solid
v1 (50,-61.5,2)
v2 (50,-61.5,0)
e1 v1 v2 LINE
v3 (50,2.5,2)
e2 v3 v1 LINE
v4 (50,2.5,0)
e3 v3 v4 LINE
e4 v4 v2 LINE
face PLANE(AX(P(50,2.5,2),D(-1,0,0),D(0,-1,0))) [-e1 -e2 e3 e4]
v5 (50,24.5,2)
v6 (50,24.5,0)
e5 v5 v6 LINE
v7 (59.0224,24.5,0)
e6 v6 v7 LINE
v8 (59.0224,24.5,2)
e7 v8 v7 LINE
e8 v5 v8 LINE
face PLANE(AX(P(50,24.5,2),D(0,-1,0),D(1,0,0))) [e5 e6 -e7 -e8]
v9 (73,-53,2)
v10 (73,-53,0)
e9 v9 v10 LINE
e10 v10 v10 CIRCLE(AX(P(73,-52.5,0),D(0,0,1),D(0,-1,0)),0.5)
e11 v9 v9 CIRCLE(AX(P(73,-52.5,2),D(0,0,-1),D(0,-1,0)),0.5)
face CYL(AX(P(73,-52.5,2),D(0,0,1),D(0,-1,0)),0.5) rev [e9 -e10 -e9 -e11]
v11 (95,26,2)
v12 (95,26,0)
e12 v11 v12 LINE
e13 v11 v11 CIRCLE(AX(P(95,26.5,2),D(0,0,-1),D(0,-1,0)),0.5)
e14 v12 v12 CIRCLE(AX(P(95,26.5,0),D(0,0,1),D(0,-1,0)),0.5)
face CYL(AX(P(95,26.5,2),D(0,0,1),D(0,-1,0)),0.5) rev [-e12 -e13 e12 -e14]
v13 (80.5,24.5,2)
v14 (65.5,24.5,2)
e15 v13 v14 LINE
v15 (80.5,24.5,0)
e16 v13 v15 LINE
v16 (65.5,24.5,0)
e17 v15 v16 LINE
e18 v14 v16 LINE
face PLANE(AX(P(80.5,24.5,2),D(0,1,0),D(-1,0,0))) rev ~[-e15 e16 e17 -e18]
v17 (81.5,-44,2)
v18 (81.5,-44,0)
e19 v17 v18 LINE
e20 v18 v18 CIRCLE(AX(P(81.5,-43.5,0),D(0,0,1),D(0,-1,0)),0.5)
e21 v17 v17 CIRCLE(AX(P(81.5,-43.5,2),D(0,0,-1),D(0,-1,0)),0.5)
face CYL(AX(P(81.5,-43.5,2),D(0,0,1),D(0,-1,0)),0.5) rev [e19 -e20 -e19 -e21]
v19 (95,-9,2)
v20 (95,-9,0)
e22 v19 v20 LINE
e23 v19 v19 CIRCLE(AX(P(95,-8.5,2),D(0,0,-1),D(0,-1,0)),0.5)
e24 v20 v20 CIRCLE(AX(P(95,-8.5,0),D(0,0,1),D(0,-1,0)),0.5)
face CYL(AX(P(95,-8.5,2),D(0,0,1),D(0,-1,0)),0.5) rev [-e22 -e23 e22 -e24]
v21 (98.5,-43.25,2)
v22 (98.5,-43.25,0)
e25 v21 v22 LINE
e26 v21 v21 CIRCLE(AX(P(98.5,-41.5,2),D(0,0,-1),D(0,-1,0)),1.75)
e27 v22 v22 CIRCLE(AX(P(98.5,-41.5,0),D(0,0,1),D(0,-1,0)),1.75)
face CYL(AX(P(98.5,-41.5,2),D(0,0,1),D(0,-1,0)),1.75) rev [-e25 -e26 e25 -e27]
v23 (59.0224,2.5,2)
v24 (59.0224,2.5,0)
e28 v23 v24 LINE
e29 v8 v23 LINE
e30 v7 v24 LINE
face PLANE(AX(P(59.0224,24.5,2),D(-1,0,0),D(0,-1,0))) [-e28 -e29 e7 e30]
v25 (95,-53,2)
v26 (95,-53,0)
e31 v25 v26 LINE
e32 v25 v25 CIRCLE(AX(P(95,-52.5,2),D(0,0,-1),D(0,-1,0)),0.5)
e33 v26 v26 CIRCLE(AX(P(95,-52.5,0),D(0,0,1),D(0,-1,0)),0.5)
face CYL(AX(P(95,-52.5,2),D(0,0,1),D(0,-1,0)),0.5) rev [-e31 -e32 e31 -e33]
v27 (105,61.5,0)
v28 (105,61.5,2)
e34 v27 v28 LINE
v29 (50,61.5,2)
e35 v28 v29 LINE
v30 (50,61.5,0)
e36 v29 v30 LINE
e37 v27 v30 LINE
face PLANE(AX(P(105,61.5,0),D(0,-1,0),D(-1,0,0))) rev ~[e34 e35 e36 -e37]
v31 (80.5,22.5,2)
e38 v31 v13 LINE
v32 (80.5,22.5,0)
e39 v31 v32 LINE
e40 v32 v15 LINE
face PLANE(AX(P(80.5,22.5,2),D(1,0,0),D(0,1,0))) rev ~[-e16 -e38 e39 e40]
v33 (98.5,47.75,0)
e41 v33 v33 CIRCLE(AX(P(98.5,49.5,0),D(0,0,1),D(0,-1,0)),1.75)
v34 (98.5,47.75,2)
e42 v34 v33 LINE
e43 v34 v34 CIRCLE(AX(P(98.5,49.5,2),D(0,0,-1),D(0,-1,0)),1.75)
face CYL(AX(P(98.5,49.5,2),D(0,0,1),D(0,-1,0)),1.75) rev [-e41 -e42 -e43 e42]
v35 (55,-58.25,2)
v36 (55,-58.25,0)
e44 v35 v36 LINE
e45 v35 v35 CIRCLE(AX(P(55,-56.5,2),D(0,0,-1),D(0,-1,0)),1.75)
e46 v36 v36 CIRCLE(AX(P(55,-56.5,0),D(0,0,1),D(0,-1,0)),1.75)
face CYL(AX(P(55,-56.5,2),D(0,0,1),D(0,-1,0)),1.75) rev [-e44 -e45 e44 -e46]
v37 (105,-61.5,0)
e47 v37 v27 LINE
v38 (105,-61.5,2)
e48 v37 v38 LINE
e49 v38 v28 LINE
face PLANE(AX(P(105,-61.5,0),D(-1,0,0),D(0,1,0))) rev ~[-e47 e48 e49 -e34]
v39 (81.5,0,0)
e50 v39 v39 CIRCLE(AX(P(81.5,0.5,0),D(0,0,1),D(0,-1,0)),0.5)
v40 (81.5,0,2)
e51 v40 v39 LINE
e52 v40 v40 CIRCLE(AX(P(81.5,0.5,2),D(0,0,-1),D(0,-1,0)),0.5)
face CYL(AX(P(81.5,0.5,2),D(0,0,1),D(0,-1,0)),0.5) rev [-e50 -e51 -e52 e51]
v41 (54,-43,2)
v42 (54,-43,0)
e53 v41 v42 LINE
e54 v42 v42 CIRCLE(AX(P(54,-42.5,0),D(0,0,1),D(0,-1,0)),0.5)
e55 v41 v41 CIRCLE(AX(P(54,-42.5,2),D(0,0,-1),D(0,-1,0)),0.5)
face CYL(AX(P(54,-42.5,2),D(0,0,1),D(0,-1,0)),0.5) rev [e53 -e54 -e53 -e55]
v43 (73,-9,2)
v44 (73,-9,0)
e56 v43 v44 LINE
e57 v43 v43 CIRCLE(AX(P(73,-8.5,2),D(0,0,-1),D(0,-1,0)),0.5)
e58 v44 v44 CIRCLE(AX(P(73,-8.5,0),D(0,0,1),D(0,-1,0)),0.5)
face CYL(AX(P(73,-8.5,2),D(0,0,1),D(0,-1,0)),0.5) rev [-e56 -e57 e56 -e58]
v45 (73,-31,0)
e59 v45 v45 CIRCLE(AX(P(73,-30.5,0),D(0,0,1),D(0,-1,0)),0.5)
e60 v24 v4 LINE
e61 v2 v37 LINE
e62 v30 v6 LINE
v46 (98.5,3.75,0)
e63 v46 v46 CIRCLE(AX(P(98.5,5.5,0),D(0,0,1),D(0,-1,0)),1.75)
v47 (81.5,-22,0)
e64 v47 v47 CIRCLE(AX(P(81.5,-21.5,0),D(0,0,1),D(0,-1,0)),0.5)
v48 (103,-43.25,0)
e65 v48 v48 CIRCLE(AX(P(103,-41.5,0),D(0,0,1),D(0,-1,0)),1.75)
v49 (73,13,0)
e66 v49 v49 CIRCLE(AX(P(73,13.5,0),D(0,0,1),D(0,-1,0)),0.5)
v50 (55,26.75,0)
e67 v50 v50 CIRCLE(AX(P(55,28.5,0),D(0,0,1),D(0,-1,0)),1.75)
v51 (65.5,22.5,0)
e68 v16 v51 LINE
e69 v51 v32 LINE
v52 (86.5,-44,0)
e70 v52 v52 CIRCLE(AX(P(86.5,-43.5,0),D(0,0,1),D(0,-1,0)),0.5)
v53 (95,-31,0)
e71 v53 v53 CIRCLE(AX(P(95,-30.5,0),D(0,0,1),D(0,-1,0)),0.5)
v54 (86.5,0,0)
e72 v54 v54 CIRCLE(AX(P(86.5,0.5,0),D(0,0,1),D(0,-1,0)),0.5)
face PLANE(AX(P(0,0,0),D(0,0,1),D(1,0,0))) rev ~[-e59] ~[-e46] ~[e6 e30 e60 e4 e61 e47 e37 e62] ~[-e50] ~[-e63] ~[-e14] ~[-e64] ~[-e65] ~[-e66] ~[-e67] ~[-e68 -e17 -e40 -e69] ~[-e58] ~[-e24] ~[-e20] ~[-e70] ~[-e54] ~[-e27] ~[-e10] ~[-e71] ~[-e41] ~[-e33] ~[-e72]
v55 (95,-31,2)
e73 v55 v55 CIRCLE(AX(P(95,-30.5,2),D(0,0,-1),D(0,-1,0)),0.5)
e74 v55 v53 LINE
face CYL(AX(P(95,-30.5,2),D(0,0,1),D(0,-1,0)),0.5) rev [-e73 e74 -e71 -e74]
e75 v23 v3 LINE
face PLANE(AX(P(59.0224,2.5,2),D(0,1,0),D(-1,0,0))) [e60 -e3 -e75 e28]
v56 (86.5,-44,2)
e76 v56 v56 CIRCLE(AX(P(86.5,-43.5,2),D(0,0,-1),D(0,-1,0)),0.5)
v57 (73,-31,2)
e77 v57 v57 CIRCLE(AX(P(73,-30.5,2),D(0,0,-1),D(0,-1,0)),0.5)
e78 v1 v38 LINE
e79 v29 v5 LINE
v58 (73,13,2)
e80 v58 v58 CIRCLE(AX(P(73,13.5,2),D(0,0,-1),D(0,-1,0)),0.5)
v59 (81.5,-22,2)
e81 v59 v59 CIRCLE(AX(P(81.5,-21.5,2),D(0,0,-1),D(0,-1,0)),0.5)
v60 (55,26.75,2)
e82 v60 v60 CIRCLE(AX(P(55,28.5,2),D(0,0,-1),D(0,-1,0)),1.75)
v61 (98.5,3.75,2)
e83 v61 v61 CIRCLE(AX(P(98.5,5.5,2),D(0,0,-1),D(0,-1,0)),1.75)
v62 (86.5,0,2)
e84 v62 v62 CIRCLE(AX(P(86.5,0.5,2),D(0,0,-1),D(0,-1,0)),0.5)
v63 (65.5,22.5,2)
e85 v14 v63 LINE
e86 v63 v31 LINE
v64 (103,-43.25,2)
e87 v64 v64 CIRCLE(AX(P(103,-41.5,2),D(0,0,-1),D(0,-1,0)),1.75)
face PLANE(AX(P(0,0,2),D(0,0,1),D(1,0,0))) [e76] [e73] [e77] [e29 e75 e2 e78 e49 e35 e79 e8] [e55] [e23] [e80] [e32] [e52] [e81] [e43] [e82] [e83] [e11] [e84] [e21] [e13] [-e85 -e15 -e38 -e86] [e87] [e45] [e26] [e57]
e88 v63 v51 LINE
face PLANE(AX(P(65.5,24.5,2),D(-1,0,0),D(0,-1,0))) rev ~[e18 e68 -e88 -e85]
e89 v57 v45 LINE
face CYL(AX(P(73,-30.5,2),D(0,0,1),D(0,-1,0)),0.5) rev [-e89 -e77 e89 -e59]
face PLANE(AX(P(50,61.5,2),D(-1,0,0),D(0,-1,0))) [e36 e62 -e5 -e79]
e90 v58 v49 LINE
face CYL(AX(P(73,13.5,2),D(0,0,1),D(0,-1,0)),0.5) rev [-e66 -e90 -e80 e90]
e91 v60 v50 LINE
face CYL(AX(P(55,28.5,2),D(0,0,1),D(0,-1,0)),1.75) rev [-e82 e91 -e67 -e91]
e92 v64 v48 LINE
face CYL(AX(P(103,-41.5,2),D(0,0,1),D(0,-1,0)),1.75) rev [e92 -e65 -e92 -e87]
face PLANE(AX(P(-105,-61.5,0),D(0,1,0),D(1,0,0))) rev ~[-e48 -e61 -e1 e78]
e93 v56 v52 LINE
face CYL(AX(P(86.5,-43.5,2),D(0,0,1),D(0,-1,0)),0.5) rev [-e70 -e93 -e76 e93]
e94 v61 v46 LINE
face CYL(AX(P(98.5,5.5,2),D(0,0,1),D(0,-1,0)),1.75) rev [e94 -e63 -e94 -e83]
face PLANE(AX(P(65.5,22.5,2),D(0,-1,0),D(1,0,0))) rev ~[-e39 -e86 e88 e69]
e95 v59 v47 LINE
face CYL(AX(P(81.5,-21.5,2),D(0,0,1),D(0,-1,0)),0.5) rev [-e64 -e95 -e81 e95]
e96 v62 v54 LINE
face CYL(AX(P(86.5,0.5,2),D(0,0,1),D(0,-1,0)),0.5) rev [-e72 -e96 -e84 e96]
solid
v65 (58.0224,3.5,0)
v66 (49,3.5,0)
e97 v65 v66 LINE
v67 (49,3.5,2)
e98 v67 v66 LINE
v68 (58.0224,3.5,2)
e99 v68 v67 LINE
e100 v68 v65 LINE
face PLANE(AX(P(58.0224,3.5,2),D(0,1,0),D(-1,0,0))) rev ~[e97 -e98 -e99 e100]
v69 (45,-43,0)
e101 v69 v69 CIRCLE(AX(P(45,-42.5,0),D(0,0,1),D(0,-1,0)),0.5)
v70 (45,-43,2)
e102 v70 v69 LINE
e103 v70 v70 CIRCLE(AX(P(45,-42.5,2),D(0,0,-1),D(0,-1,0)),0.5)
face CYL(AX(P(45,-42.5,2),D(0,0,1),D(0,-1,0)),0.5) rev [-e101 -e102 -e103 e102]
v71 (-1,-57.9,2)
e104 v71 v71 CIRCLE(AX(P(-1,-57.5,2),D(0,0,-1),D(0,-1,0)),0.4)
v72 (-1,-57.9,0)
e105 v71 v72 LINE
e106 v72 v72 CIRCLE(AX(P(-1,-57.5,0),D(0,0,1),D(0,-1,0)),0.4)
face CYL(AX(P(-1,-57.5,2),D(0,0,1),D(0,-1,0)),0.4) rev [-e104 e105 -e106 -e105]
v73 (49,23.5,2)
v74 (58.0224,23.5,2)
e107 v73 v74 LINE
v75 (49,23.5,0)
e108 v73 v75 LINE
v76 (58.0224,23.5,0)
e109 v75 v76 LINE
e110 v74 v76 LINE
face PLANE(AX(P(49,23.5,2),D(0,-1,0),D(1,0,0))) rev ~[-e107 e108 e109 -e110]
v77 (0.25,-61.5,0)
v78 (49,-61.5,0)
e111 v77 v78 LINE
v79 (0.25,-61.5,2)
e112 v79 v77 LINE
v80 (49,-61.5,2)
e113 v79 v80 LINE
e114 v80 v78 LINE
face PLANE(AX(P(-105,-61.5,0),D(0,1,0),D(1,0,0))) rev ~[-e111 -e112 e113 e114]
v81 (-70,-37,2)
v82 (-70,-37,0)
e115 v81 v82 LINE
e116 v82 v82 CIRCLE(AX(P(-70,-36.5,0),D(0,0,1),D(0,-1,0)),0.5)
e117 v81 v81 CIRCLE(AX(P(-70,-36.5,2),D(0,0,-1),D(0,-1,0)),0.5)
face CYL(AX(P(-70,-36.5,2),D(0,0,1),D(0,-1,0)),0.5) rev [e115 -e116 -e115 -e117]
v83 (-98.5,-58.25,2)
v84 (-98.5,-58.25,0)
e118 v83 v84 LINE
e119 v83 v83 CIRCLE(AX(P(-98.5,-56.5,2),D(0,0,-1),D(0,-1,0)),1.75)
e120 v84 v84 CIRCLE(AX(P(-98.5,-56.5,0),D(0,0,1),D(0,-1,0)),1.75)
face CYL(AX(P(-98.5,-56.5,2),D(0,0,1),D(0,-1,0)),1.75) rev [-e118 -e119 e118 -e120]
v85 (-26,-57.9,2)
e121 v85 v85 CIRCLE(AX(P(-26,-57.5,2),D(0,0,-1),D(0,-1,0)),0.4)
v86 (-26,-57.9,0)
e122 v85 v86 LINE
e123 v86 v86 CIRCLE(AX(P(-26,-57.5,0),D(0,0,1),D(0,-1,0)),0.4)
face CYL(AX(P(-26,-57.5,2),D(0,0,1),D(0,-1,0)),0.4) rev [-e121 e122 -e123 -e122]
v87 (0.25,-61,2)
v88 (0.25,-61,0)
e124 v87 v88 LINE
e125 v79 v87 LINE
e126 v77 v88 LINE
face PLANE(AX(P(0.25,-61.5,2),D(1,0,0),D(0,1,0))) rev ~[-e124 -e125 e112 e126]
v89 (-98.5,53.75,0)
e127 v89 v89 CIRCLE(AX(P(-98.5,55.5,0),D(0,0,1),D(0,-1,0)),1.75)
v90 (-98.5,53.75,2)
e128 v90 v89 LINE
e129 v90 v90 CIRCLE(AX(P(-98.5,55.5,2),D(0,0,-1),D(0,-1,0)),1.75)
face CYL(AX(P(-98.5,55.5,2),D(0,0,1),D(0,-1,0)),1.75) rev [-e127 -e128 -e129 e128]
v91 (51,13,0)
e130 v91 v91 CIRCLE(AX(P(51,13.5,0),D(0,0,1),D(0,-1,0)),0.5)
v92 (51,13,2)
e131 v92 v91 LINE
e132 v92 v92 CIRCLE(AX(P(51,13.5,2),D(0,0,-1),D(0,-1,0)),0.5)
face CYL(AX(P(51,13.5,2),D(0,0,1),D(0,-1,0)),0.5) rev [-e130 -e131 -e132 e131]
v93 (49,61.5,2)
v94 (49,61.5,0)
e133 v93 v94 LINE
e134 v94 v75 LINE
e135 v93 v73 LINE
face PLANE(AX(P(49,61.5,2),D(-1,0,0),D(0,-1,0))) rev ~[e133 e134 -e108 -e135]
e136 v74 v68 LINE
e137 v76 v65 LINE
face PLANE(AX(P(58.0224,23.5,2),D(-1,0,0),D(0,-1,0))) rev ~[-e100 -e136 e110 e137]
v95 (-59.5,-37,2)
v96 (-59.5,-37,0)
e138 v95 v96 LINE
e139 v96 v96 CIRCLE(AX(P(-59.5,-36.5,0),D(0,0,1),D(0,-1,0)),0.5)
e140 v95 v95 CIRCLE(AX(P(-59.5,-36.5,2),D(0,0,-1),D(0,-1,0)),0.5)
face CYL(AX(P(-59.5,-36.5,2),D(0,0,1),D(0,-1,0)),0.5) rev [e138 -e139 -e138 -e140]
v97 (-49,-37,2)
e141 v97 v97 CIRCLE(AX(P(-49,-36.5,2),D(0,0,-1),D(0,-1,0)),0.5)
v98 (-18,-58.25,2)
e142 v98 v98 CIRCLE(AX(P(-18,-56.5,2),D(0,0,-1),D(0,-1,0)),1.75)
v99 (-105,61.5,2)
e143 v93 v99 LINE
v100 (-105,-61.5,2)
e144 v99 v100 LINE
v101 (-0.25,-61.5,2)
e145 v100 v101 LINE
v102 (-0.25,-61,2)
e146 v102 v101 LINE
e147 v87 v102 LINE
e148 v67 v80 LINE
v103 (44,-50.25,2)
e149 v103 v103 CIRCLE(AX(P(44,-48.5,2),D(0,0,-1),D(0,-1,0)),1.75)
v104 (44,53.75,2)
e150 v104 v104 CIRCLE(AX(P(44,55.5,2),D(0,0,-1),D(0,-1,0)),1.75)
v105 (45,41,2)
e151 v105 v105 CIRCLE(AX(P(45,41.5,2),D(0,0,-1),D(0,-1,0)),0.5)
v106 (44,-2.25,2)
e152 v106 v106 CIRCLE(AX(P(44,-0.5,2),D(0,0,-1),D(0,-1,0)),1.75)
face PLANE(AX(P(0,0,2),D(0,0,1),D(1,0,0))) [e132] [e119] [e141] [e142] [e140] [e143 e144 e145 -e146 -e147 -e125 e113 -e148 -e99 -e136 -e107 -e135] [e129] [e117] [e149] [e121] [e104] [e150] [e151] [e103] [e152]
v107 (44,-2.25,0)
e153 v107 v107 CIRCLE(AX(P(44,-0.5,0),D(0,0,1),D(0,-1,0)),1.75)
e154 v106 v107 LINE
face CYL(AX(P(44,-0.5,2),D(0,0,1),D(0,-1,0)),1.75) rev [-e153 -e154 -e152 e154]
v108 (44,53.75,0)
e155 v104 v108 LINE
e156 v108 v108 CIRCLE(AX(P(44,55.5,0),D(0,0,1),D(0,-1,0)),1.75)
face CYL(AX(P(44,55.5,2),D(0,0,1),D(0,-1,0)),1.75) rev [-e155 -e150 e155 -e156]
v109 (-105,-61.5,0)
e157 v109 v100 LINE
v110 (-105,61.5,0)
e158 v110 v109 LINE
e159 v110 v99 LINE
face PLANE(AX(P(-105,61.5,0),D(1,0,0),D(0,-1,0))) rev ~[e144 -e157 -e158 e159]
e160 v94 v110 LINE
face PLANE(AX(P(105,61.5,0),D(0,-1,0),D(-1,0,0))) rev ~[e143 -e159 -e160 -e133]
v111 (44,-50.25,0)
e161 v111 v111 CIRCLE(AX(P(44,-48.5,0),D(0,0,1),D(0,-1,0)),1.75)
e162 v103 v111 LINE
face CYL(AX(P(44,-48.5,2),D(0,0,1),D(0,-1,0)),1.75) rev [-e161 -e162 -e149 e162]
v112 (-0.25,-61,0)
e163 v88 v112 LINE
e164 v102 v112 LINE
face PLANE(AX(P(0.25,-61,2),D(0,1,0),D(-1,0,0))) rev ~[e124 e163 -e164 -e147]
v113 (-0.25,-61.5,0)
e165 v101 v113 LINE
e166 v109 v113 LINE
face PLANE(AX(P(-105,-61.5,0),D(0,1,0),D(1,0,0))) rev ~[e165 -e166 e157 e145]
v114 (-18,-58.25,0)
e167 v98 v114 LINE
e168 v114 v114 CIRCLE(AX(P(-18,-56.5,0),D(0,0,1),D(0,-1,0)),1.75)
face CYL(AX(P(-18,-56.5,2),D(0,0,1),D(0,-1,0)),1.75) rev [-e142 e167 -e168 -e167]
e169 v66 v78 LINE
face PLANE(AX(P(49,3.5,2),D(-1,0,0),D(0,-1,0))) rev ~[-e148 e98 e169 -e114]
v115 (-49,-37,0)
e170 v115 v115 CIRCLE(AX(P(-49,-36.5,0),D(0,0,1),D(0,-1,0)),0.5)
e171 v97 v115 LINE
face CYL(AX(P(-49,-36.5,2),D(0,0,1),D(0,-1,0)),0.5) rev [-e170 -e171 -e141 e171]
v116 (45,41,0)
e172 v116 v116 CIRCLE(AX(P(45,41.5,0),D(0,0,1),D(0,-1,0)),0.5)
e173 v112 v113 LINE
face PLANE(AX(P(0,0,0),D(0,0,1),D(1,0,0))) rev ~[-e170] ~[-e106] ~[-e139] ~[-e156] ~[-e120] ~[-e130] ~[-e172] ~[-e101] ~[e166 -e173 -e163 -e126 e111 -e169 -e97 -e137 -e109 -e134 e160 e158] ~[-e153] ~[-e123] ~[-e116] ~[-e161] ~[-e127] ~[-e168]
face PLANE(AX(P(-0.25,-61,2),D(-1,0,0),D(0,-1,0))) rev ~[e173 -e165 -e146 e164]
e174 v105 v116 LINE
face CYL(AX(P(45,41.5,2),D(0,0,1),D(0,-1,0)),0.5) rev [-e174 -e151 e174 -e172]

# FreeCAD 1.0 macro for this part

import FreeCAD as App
import Part
import Sketcher
Q = App.Units.Quantity

doc = App.newDocument("Part")
body = doc.addObject("PartDesign::Body", "Body")
body.AllowCompound = True

# Sketch on XY plane
sketch1 = body.newObject("Sketcher::SketchObject", "Sketch")
sketch1.AttachmentSupport = (doc.getObject("XY_Plane"), [""])
sketch1.MapMode = "FlatFace"
sketch1.addGeometry([
    Part.LineSegment(App.Vector(-105, 62, 0), App.Vector(-105, -62, 0)),
    Part.LineSegment(App.Vector(-105, -62, 0), App.Vector(105, -62, 0)),
    Part.LineSegment(App.Vector(105, -62, 0), App.Vector(105, 62, 0)),
    Part.LineSegment(App.Vector(105, 62, 0), App.Vector(-105, 62, 0)),
], False)
sketch1.addConstraint([
    Sketcher.Constraint("Coincident", 0, 2, 1, 1),
    Sketcher.Constraint("Coincident", 1, 2, 2, 1),
    Sketcher.Constraint("Coincident", 2, 2, 3, 1),
    Sketcher.Constraint("Coincident", 3, 2, 0, 1),
    Sketcher.Constraint("Vertical", 0),
    Sketcher.Constraint("Horizontal", 1),
    Sketcher.Constraint("Vertical", 2),
    Sketcher.Constraint("Horizontal", 3),
    Sketcher.Constraint("Symmetric", 0, 2, 2, 2, -1, 1),
    Sketcher.Constraint("DistanceX", 0, 2, -1, 1, Q("105 mm")),
    Sketcher.Constraint("DistanceY", 0, 2, 0, 1, Q("123 mm")),
])
pad1 = body.newObject("PartDesign::Pad", "Pad")
pad1.Profile = sketch1
pad1.Length = 2

# Sketch on XY plane
sketch2 = body.newObject("Sketcher::SketchObject", "Sketch001")
sketch2.AttachmentSupport = (doc.getObject("XY_Plane"), [""])
sketch2.MapMode = "FlatFace"
sketch2.AttachmentOffset = App.Placement(App.Vector(0, 0, 2), App.Rotation())
sketch2.addGeometry(Part.Circle(App.Vector(-1, -57.5, 0), App.Vector(0, 0, 1), 0.4), False)
sketch2.addConstraint([
    Sketcher.Constraint("Diameter", 0, Q("0.8 mm")),
    Sketcher.Constraint("DistanceX", 0, 3, -1, 1, Q("1 mm")),
    Sketcher.Constraint("DistanceY", 0, 3, -1, 1, Q("57.5 mm")),
])
doc.recompute()
hole = body.newObject("PartDesign::Hole", "Hole")
hole.Profile = sketch2
hole.ThreadType = "None"
hole.Diameter = 0.8
hole.DepthType = "ThroughAll"

# Sketch on XY plane
sketch3 = body.newObject("Sketcher::SketchObject", "Sketch002")
sketch3.AttachmentSupport = (doc.getObject("XY_Plane"), [""])
sketch3.MapMode = "FlatFace"
sketch3.AttachmentOffset = App.Placement(App.Vector(0, 0, 2), App.Rotation())
sketch3.addGeometry(Part.Circle(App.Vector(-26, -57.5, 0), App.Vector(0, 0, 1), 0.4), False)
sketch3.addConstraint([
    Sketcher.Constraint("Diameter", 0, Q("0.8 mm")),
    Sketcher.Constraint("DistanceX", 0, 3, -1, 1, Q("26 mm")),
    Sketcher.Constraint("DistanceY", 0, 3, -1, 1, Q("57.5 mm")),
])
doc.recompute()
hole2 = body.newObject("PartDesign::Hole", "Hole001")
hole2.Profile = sketch3
hole2.ThreadType = "None"
hole2.Diameter = 0.8
hole2.DepthType = "ThroughAll"

# Sketch on XY plane
sketch4 = body.newObject("Sketcher::SketchObject", "Sketch003")
sketch4.AttachmentSupport = (doc.getObject("XY_Plane"), [""])
sketch4.MapMode = "FlatFace"
sketch4.AttachmentOffset = App.Placement(App.Vector(0, 0, 2), App.Rotation())
sketch4.addGeometry([
    Part.LineSegment(App.Vector(0.2, -61.5, 0), App.Vector(0.2, -61, 0)),
    Part.LineSegment(App.Vector(0.2, -61, 0), App.Vector(-0.2, -61, 0)),
    Part.LineSegment(App.Vector(-0.2, -61, 0), App.Vector(-0.2, -61.5, 0)),
    Part.LineSegment(App.Vector(-0.2, -61.5, 0), App.Vector(0.2, -61.5, 0)),
], False)
sketch4.addConstraint([
    Sketcher.Constraint("Coincident", 0, 2, 1, 1),
    Sketcher.Constraint("Coincident", 1, 2, 2, 1),
    Sketcher.Constraint("Coincident", 2, 2, 3, 1),
    Sketcher.Constraint("Coincident", 3, 2, 0, 1),
    Sketcher.Constraint("Vertical", 0),
    Sketcher.Constraint("Horizontal", 1),
    Sketcher.Constraint("Vertical", 2),
    Sketcher.Constraint("Horizontal", 3),
    Sketcher.Constraint("Equal", 3, 0),
    Sketcher.Constraint("DistanceX", -1, 1, 0, 2, Q("0.25 mm")),
    Sketcher.Constraint("DistanceX", 1, 2, -1, 1, Q("0.25 mm")),
    Sketcher.Constraint("DistanceY", 0, 2, -1, 1, Q("61 mm")),
])
pocket1 = body.newObject("PartDesign::Pocket", "Pocket")
pocket1.Profile = sketch4
pocket1.Type = "ThroughAll"

# Sketch on XY plane
sketch5 = body.newObject("Sketcher::SketchObject", "Sketch004")
sketch5.AttachmentSupport = (doc.getObject("XY_Plane"), [""])
sketch5.MapMode = "FlatFace"
sketch5.AttachmentOffset = App.Placement(App.Vector(0, 0, 2), App.Rotation())
sketch5.addGeometry(Part.Circle(App.Vector(73, -52.5, 0), App.Vector(0, 0, 1), 0.5), False)
sketch5.addConstraint([
    Sketcher.Constraint("Diameter", 0, Q("1 mm")),
    Sketcher.Constraint("DistanceX", -1, 1, 0, 3, Q("73 mm")),
    Sketcher.Constraint("DistanceY", 0, 3, -1, 1, Q("52.5 mm")),
])
doc.recompute()
hole3 = body.newObject("PartDesign::Hole", "Hole002")
hole3.Profile = sketch5
hole3.ThreadType = "None"
hole3.Diameter = 1
hole3.DepthType = "ThroughAll"

# Sketch on XY plane
sketch6 = body.newObject("Sketcher::SketchObject", "Sketch005")
sketch6.AttachmentSupport = (doc.getObject("XY_Plane"), [""])
sketch6.MapMode = "FlatFace"
sketch6.AttachmentOffset = App.Placement(App.Vector(0, 0, 2), App.Rotation())
sketch6.addGeometry(Part.Circle(App.Vector(73, -30.5, 0), App.Vector(0, 0, 1), 0.5), False)
sketch6.addConstraint([
    Sketcher.Constraint("Diameter", 0, Q("1 mm")),
    Sketcher.Constraint("DistanceX", -1, 1, 0, 3, Q("73 mm")),
    Sketcher.Constraint("DistanceY", 0, 3, -1, 1, Q("30.5 mm")),
])
doc.recompute()
hole4 = body.newObject("PartDesign::Hole", "Hole003")
hole4.Profile = sketch6
hole4.ThreadType = "None"
hole4.Diameter = 1
hole4.DepthType = "ThroughAll"

# Sketch on XY plane
sketch7 = body.newObject("Sketcher::SketchObject", "Sketch006")
sketch7.AttachmentSupport = (doc.getObject("XY_Plane"), [""])
sketch7.MapMode = "FlatFace"
sketch7.AttachmentOffset = App.Placement(App.Vector(0, 0, 2), App.Rotation())
sketch7.addGeometry(Part.Circle(App.Vector(73, -8.5, 0), App.Vector(0, 0, 1), 0.5), False)
sketch7.addConstraint([
    Sketcher.Constraint("Diameter", 0, Q("1 mm")),
    Sketcher.Constraint("DistanceX", -1, 1, 0, 3, Q("73 mm")),
    Sketcher.Constraint("DistanceY", 0, 3, -1, 1, Q("8.5 mm")),
])
doc.recompute()
hole5 = body.newObject("PartDesign::Hole", "Hole004")
hole5.Profile = sketch7
hole5.ThreadType = "None"
hole5.Diameter = 1
hole5.DepthType = "ThroughAll"

# Sketch on XY plane
sketch8 = body.newObject("Sketcher::SketchObject", "Sketch007")
sketch8.AttachmentSupport = (doc.getObject("XY_Plane"), [""])
sketch8.MapMode = "FlatFace"
sketch8.AttachmentOffset = App.Placement(App.Vector(0, 0, 2), App.Rotation())
sketch8.addGeometry(Part.Circle(App.Vector(95, -8.5, 0), App.Vector(0, 0, 1), 0.5), False)
sketch8.addConstraint([
    Sketcher.Constraint("Diameter", 0, Q("1 mm")),
    Sketcher.Constraint("DistanceX", -1, 1, 0, 3, Q("95 mm")),
    Sketcher.Constraint("DistanceY", 0, 3, -1, 1, Q("8.5 mm")),
])
doc.recompute()
hole6 = body.newObject("PartDesign::Hole", "Hole005")
hole6.Profile = sketch8
hole6.ThreadType = "None"
hole6.Diameter = 1
hole6.DepthType = "ThroughAll"

# Sketch on XY plane
sketch9 = body.newObject("Sketcher::SketchObject", "Sketch008")
sketch9.AttachmentSupport = (doc.getObject("XY_Plane"), [""])
sketch9.MapMode = "FlatFace"
sketch9.AttachmentOffset = App.Placement(App.Vector(0, 0, 2), App.Rotation())
sketch9.addGeometry(Part.Circle(App.Vector(95, -30.5, 0), App.Vector(0, 0, 1), 0.5), False)
sketch9.addConstraint([
    Sketcher.Constraint("Diameter", 0, Q("1 mm")),
    Sketcher.Constraint("DistanceX", -1, 1, 0, 3, Q("95 mm")),
    Sketcher.Constraint("DistanceY", 0, 3, -1, 1, Q("30.5 mm")),
])
doc.recompute()
hole7 = body.newObject("PartDesign::Hole", "Hole006")
hole7.Profile = sketch9
hole7.ThreadType = "None"
hole7.Diameter = 1
hole7.DepthType = "ThroughAll"

# Sketch on XY plane
sketch10 = body.newObject("Sketcher::SketchObject", "Sketch009")
sketch10.AttachmentSupport = (doc.getObject("XY_Plane"), [""])
sketch10.MapMode = "FlatFace"
sketch10.AttachmentOffset = App.Placement(App.Vector(0, 0, 2), App.Rotation())
sketch10.addGeometry(Part.Circle(App.Vector(73, 13.5, 0), App.Vector(0, 0, 1), 0.5), False)
sketch10.addConstraint([
    Sketcher.Constraint("Diameter", 0, Q("1 mm")),
    Sketcher.Constraint("DistanceX", -1, 1, 0, 3, Q("73 mm")),
    Sketcher.Constraint("DistanceY", -1, 1, 0, 3, Q("13.5 mm")),
])
doc.recompute()
hole8 = body.newObject("PartDesign::Hole", "Hole007")
hole8.Profile = sketch10
hole8.ThreadType = "None"
hole8.Diameter = 1
hole8.DepthType = "ThroughAll"

# Sketch on XY plane
sketch11 = body.newObject("Sketcher::SketchObject", "Sketch010")
sketch11.AttachmentSupport = (doc.getObject("XY_Plane"), [""])
sketch11.MapMode = "FlatFace"
sketch11.AttachmentOffset = App.Placement(App.Vector(0, 0, 2), App.Rotation())
sketch11.addGeometry(Part.Circle(App.Vector(95, -52.5, 0), App.Vector(0, 0, 1), 0.5), False)
sketch11.addConstraint([
    Sketcher.Constraint("Diameter", 0, Q("1 mm")),
    Sketcher.Constraint("DistanceX", -1, 1, 0, 3, Q("95 mm")),
    Sketcher.Constraint("DistanceY", 0, 3, -1, 1, Q("52.5 mm")),
])
doc.recompute()
hole9 = body.newObject("PartDesign::Hole", "Hole008")
hole9.Profile = sketch11
hole9.ThreadType = "None"
hole9.Diameter = 1
hole9.DepthType = "ThroughAll"

# Sketch on XY plane
sketch12 = body.newObject("Sketcher::SketchObject", "Sketch011")
sketch12.AttachmentSupport = (doc.getObject("XY_Plane"), [""])
sketch12.MapMode = "FlatFace"
sketch12.AttachmentOffset = App.Placement(App.Vector(0, 0, 2), App.Rotation())
sketch12.addGeometry([
    Part.LineSegment(App.Vector(65.5, 24.5, 0), App.Vector(65.5, 22.5, 0)),
    Part.LineSegment(App.Vector(65.5, 22.5, 0), App.Vector(80.5, 22.5, 0)),
    Part.LineSegment(App.Vector(80.5, 22.5, 0), App.Vector(80.5, 24.5, 0)),
    Part.LineSegment(App.Vector(80.5, 24.5, 0), App.Vector(65.5, 24.5, 0)),
], False)
sketch12.addConstraint([
    Sketcher.Constraint("Coincident", 0, 2, 1, 1),
    Sketcher.Constraint("Coincident", 1, 2, 2, 1),
    Sketcher.Constraint("Coincident", 2, 2, 3, 1),
    Sketcher.Constraint("Coincident", 3, 2, 0, 1),
    Sketcher.Constraint("Vertical", 0),
    Sketcher.Constraint("Horizontal", 1),
    Sketcher.Constraint("Vertical", 2),
    Sketcher.Constraint("Horizontal", 3),
    Sketcher.Constraint("DistanceX", -1, 1, 0, 2, Q("65.5 mm")),
    Sketcher.Constraint("DistanceX", -1, 1, 1, 2, Q("80.5 mm")),
    Sketcher.Constraint("DistanceY", 0, 2, 0, 1, Q("2 mm")),
    Sketcher.Constraint("DistanceY", -1, 1, 0, 2, Q("22.5 mm")),
])
pocket2 = body.newObject("PartDesign::Pocket", "Pocket001")
pocket2.Profile = sketch12
pocket2.Type = "ThroughAll"

# Sketch on XY plane
sketch13 = body.newObject("Sketcher::SketchObject", "Sketch012")
sketch13.AttachmentSupport = (doc.getObject("XY_Plane"), [""])
sketch13.MapMode = "FlatFace"
sketch13.AttachmentOffset = App.Placement(App.Vector(0, 0, 2), App.Rotation())
sketch13.addGeometry([
    Part.LineSegment(App.Vector(50, 61.5, 0), App.Vector(49, 61.5, 0)),  # 0
    Part.LineSegment(App.Vector(49, 61.5, 0), App.Vector(49, 23.5, 0)),  # 1
    Part.LineSegment(App.Vector(49, 23.5, 0), App.Vector(58, 23.5, 0)),  # 2
    Part.LineSegment(App.Vector(58, 23.5, 0), App.Vector(58, 3.5, 0)),  # 3
    Part.LineSegment(App.Vector(58, 3.5, 0), App.Vector(49, 3.5, 0)),  # 4
    Part.LineSegment(App.Vector(49, 3.5, 0), App.Vector(49, -61.5, 0)),  # 5
    Part.LineSegment(App.Vector(49, -61.5, 0), App.Vector(50, -61.5, 0)),  # 6
    Part.LineSegment(App.Vector(50, -61.5, 0), App.Vector(50, 2.5, 0)),  # 7
    Part.LineSegment(App.Vector(50, 2.5, 0), App.Vector(59, 2.5, 0)),  # 8
    Part.LineSegment(App.Vector(59, 2.5, 0), App.Vector(59, 24.5, 0)),  # 9
    Part.LineSegment(App.Vector(59, 24.5, 0), App.Vector(50, 24.5, 0)),  # 10
    Part.LineSegment(App.Vector(50, 24.5, 0), App.Vector(50, 61.5, 0)),  # 11
], False)
sketch13.addConstraint([
    Sketcher.Constraint("Coincident", 0, 2, 1, 1),
    Sketcher.Constraint("Coincident", 1, 2, 2, 1),
    Sketcher.Constraint("Coincident", 2, 2, 3, 1),
    Sketcher.Constraint("Coincident", 3, 2, 4, 1),
    Sketcher.Constraint("Coincident", 4, 2, 5, 1),
    Sketcher.Constraint("Coincident", 5, 2, 6, 1),
    Sketcher.Constraint("Coincident", 6, 2, 7, 1),
    Sketcher.Constraint("Coincident", 7, 2, 8, 1),
    Sketcher.Constraint("Coincident", 8, 2, 9, 1),
    Sketcher.Constraint("Coincident", 9, 2, 10, 1),
    Sketcher.Constraint("Coincident", 10, 2, 11, 1),
    Sketcher.Constraint("Coincident", 11, 2, 0, 1),
    Sketcher.Constraint("Horizontal", 0),
    Sketcher.Constraint("Vertical", 1),
    Sketcher.Constraint("Horizontal", 2),
    Sketcher.Constraint("Vertical", 3),
    Sketcher.Constraint("Horizontal", 4),
    Sketcher.Constraint("Vertical", 5),
    Sketcher.Constraint("Horizontal", 6),
    Sketcher.Constraint("Vertical", 7),
    Sketcher.Constraint("Horizontal", 8),
    Sketcher.Constraint("Vertical", 9),
    Sketcher.Constraint("Horizontal", 10),
    Sketcher.Constraint("Vertical", 11),
    Sketcher.Constraint("Symmetric", 0, 2, 5, 2, -1),
    Sketcher.Constraint("Vertical", 7, 2, 10, 2),
    Sketcher.Constraint("Equal", 4, 8),
    Sketcher.Constraint("DistanceX", -1, 1, 0, 2, Q("49 mm")),
    Sketcher.Constraint("DistanceX", -1, 1, 6, 2, Q("50 mm")),
    Sketcher.Constraint("DistanceY", 1, 2, 1, 1, Q("38 mm")),
    Sketcher.Constraint("DistanceY", 3, 2, 3, 1, Q("20 mm")),
    Sketcher.Constraint("DistanceY", 5, 2, 5, 1, Q("65 mm")),
    Sketcher.Constraint("DistanceY", 7, 1, 7, 2, Q("64 mm")),
    Sketcher.Constraint("DistanceY", 9, 1, 9, 2, Q("22 mm")),
    Sketcher.Constraint("DistanceX", -1, 1, 2, 2, Q("58.0224 mm")),
])
pocket3 = body.newObject("PartDesign::Pocket", "Pocket002")
pocket3.Profile = sketch13
pocket3.Length = 2

# Sketch on XY plane
sketch14 = body.newObject("Sketcher::SketchObject", "Sketch013")
sketch14.AttachmentSupport = (doc.getObject("XY_Plane"), [""])
sketch14.MapMode = "FlatFace"
sketch14.AttachmentOffset = App.Placement(App.Vector(0, 0, 2), App.Rotation())
sketch14.addGeometry(Part.Circle(App.Vector(-98.5, 55.5, 0), App.Vector(0, 0, 1), 1.8), False)
sketch14.addConstraint([
    Sketcher.Constraint("Diameter", 0, Q("3.5 mm")),
    Sketcher.Constraint("DistanceX", 0, 3, -1, 1, Q("98.5 mm")),
    Sketcher.Constraint("DistanceY", -1, 1, 0, 3, Q("55.5 mm")),
])
doc.recompute()
hole10 = body.newObject("PartDesign::Hole", "Hole009")
hole10.Profile = sketch14
hole10.ThreadType = "None"
hole10.Diameter = 3.5
hole10.DepthType = "ThroughAll"

# Sketch on XY plane
sketch15 = body.newObject("Sketcher::SketchObject", "Sketch014")
sketch15.AttachmentSupport = (doc.getObject("XY_Plane"), [""])
sketch15.MapMode = "FlatFace"
sketch15.AttachmentOffset = App.Placement(App.Vector(0, 0, 2), App.Rotation())
sketch15.addGeometry(Part.Circle(App.Vector(44, 55.5, 0), App.Vector(0, 0, 1), 1.8), False)
sketch15.addConstraint([
    Sketcher.Constraint("Diameter", 0, Q("3.5 mm")),
    Sketcher.Constraint("DistanceX", -1, 1, 0, 3, Q("44 mm")),
    Sketcher.Constraint("DistanceY", -1, 1, 0, 3, Q("55.5 mm")),
])
doc.recompute()
hole11 = body.newObject("PartDesign::Hole", "Hole010")
hole11.Profile = sketch15
hole11.ThreadType = "None"
hole11.Diameter = 3.5
hole11.DepthType = "ThroughAll"

# Sketch on XY plane
sketch16 = body.newObject("Sketcher::SketchObject", "Sketch015")
sketch16.AttachmentSupport = (doc.getObject("XY_Plane"), [""])
sketch16.MapMode = "FlatFace"
sketch16.AttachmentOffset = App.Placement(App.Vector(0, 0, 2), App.Rotation())
sketch16.addGeometry(Part.Circle(App.Vector(98.5, 49.5, 0), App.Vector(0, 0, 1), 1.8), False)
sketch16.addConstraint([
    Sketcher.Constraint("Diameter", 0, Q("3.5 mm")),
    Sketcher.Constraint("DistanceX", -1, 1, 0, 3, Q("98.5 mm")),
    Sketcher.Constraint("DistanceY", -1, 1, 0, 3, Q("49.5 mm")),
])
doc.recompute()
hole12 = body.newObject("PartDesign::Hole", "Hole011")
hole12.Profile = sketch16
hole12.ThreadType = "None"
hole12.Diameter = 3.5
hole12.DepthType = "ThroughAll"

# Sketch on XY plane
sketch17 = body.newObject("Sketcher::SketchObject", "Sketch016")
sketch17.AttachmentSupport = (doc.getObject("XY_Plane"), [""])
sketch17.MapMode = "FlatFace"
sketch17.AttachmentOffset = App.Placement(App.Vector(0, 0, 2), App.Rotation())
sketch17.addGeometry(Part.Circle(App.Vector(98.5, -41.5, 0), App.Vector(0, 0, 1), 1.8), False)
sketch17.addConstraint([
    Sketcher.Constraint("Diameter", 0, Q("3.5 mm")),
    Sketcher.Constraint("DistanceX", -1, 1, 0, 3, Q("98.5 mm")),
    Sketcher.Constraint("DistanceY", 0, 3, -1, 1, Q("41.5 mm")),
])
doc.recompute()
hole13 = body.newObject("PartDesign::Hole", "Hole012")
hole13.Profile = sketch17
hole13.ThreadType = "None"
hole13.Diameter = 3.5
hole13.DepthType = "ThroughAll"

# Sketch on XY plane
sketch18 = body.newObject("Sketcher::SketchObject", "Sketch017")
sketch18.AttachmentSupport = (doc.getObject("XY_Plane"), [""])
sketch18.MapMode = "FlatFace"
sketch18.AttachmentOffset = App.Placement(App.Vector(0, 0, 2), App.Rotation())
sketch18.addGeometry(Part.Circle(App.Vector(44, -48.5, 0), App.Vector(0, 0, 1), 1.8), False)
sketch18.addConstraint([
    Sketcher.Constraint("Diameter", 0, Q("3.5 mm")),
    Sketcher.Constraint("DistanceX", -1, 1, 0, 3, Q("44 mm")),
    Sketcher.Constraint("DistanceY", 0, 3, -1, 1, Q("48.5 mm")),
])
doc.recompute()
hole14 = body.newObject("PartDesign::Hole", "Hole013")
hole14.Profile = sketch18
hole14.ThreadType = "None"
hole14.Diameter = 3.5
hole14.DepthType = "ThroughAll"

# Sketch on XY plane
sketch19 = body.newObject("Sketcher::SketchObject", "Sketch018")
sketch19.AttachmentSupport = (doc.getObject("XY_Plane"), [""])
sketch19.MapMode = "FlatFace"
sketch19.AttachmentOffset = App.Placement(App.Vector(0, 0, 2), App.Rotation())
sketch19.addGeometry(Part.Circle(App.Vector(55, -56.5, 0), App.Vector(0, 0, 1), 1.8), False)
sketch19.addConstraint([
    Sketcher.Constraint("Diameter", 0, Q("3.5 mm")),
    Sketcher.Constraint("DistanceX", -1, 1, 0, 3, Q("55 mm")),
    Sketcher.Constraint("DistanceY", 0, 3, -1, 1, Q("56.5 mm")),
])
doc.recompute()
hole15 = body.newObject("PartDesign::Hole", "Hole014")
hole15.Profile = sketch19
hole15.ThreadType = "None"
hole15.Diameter = 3.5
hole15.DepthType = "ThroughAll"

# Sketch on XY plane
sketch20 = body.newObject("Sketcher::SketchObject", "Sketch019")
sketch20.AttachmentSupport = (doc.getObject("XY_Plane"), [""])
sketch20.MapMode = "FlatFace"
sketch20.AttachmentOffset = App.Placement(App.Vector(0, 0, 2), App.Rotation())
sketch20.addGeometry(Part.Circle(App.Vector(-18, -56.5, 0), App.Vector(0, 0, 1), 1.8), False)
sketch20.addConstraint([
    Sketcher.Constraint("Diameter", 0, Q("3.5 mm")),
    Sketcher.Constraint("DistanceX", 0, 3, -1, 1, Q("18 mm")),
    Sketcher.Constraint("DistanceY", 0, 3, -1, 1, Q("56.5 mm")),
])
doc.recompute()
hole16 = body.newObject("PartDesign::Hole", "Hole015")
hole16.Profile = sketch20
hole16.ThreadType = "None"
hole16.Diameter = 3.5
hole16.DepthType = "ThroughAll"

# Sketch on XY plane
sketch21 = body.newObject("Sketcher::SketchObject", "Sketch020")
sketch21.AttachmentSupport = (doc.getObject("XY_Plane"), [""])
sketch21.MapMode = "FlatFace"
sketch21.AttachmentOffset = App.Placement(App.Vector(0, 0, 2), App.Rotation())
sketch21.addGeometry(Part.Circle(App.Vector(98.5, 5.5, 0), App.Vector(0, 0, 1), 1.8), False)
sketch21.addConstraint([
    Sketcher.Constraint("Diameter", 0, Q("3.5 mm")),
    Sketcher.Constraint("DistanceX", -1, 1, 0, 3, Q("98.5 mm")),
    Sketcher.Constraint("DistanceY", -1, 1, 0, 3, Q("5.5 mm")),
])
doc.recompute()
hole17 = body.newObject("PartDesign::Hole", "Hole016")
hole17.Profile = sketch21
hole17.ThreadType = "None"
hole17.Diameter = 3.5
hole17.DepthType = "ThroughAll"

# Sketch on XY plane
sketch22 = body.newObject("Sketcher::SketchObject", "Sketch021")
sketch22.AttachmentSupport = (doc.getObject("XY_Plane"), [""])
sketch22.MapMode = "FlatFace"
sketch22.AttachmentOffset = App.Placement(App.Vector(0, 0, 2), App.Rotation())
sketch22.addGeometry(Part.Circle(App.Vector(-98.5, -56.5, 0), App.Vector(0, 0, 1), 1.8), False)
sketch22.addConstraint([
    Sketcher.Constraint("Diameter", 0, Q("3.5 mm")),
    Sketcher.Constraint("DistanceX", 0, 3, -1, 1, Q("98.5 mm")),
    Sketcher.Constraint("DistanceY", 0, 3, -1, 1, Q("56.5 mm")),
])
doc.recompute()
hole18 = body.newObject("PartDesign::Hole", "Hole017")
hole18.Profile = sketch22
hole18.ThreadType = "None"
hole18.Diameter = 3.5
hole18.DepthType = "ThroughAll"

# Sketch on XY plane
sketch23 = body.newObject("Sketcher::SketchObject", "Sketch022")
sketch23.AttachmentSupport = (doc.getObject("XY_Plane"), [""])
sketch23.MapMode = "FlatFace"
sketch23.AttachmentOffset = App.Placement(App.Vector(0, 0, 2), App.Rotation())
sketch23.addGeometry(Part.Circle(App.Vector(55, 28.5, 0), App.Vector(0, 0, 1), 1.8), False)
sketch23.addConstraint([
    Sketcher.Constraint("Diameter", 0, Q("3.5 mm")),
    Sketcher.Constraint("DistanceX", -1, 1, 0, 3, Q("55 mm")),
    Sketcher.Constraint("DistanceY", -1, 1, 0, 3, Q("28.5 mm")),
])
doc.recompute()
hole19 = body.newObject("PartDesign::Hole", "Hole018")
hole19.Profile = sketch23
hole19.ThreadType = "None"
hole19.Diameter = 3.5
hole19.DepthType = "ThroughAll"

# Sketch on XY plane
sketch24 = body.newObject("Sketcher::SketchObject", "Sketch023")
sketch24.AttachmentSupport = (doc.getObject("XY_Plane"), [""])
sketch24.MapMode = "FlatFace"
sketch24.AttachmentOffset = App.Placement(App.Vector(0, 0, 2), App.Rotation())
sketch24.addGeometry(Part.Circle(App.Vector(44, -0.5, 0), App.Vector(0, 0, 1), 1.8), False)
sketch24.addConstraint([
    Sketcher.Constraint("Diameter", 0, Q("3.5 mm")),
    Sketcher.Constraint("DistanceX", -1, 1, 0, 3, Q("44 mm")),
    Sketcher.Constraint("DistanceY", 0, 3, -1, 1, Q("0.5 mm")),
])
doc.recompute()
hole20 = body.newObject("PartDesign::Hole", "Hole019")
hole20.Profile = sketch24
hole20.ThreadType = "None"
hole20.Diameter = 3.5
hole20.DepthType = "ThroughAll"

# Sketch on XY plane
sketch25 = body.newObject("Sketcher::SketchObject", "Sketch024")
sketch25.AttachmentSupport = (doc.getObject("XY_Plane"), [""])
sketch25.MapMode = "FlatFace"
sketch25.AttachmentOffset = App.Placement(App.Vector(0, 0, 2), App.Rotation())
sketch25.addGeometry(Part.Circle(App.Vector(103, -41.5, 0), App.Vector(0, 0, 1), 1.8), False)
sketch25.addConstraint([
    Sketcher.Constraint("Diameter", 0, Q("3.5 mm")),
    Sketcher.Constraint("DistanceX", -1, 1, 0, 3, Q("103 mm")),
    Sketcher.Constraint("DistanceY", 0, 3, -1, 1, Q("41.5 mm")),
])
doc.recompute()
hole21 = body.newObject("PartDesign::Hole", "Hole020")
hole21.Profile = sketch25
hole21.ThreadType = "None"
hole21.Diameter = 3.5
hole21.DepthType = "ThroughAll"

# Sketch on XY plane
sketch26 = body.newObject("Sketcher::SketchObject", "Sketch025")
sketch26.AttachmentSupport = (doc.getObject("XY_Plane"), [""])
sketch26.MapMode = "FlatFace"
sketch26.AttachmentOffset = App.Placement(App.Vector(0, 0, 2), App.Rotation())
sketch26.addGeometry(Part.Circle(App.Vector(54, -42.5, 0), App.Vector(0, 0, 1), 0.5), False)
sketch26.addConstraint([
    Sketcher.Constraint("Diameter", 0, Q("1 mm")),
    Sketcher.Constraint("DistanceX", -1, 1, 0, 3, Q("54 mm")),
    Sketcher.Constraint("DistanceY", 0, 3, -1, 1, Q("42.5 mm")),
])
doc.recompute()
hole22 = body.newObject("PartDesign::Hole", "Hole021")
hole22.Profile = sketch26
hole22.ThreadType = "None"
hole22.Diameter = 1
hole22.DepthType = "ThroughAll"

# Sketch on XY plane
sketch27 = body.newObject("Sketcher::SketchObject", "Sketch026")
sketch27.AttachmentSupport = (doc.getObject("XY_Plane"), [""])
sketch27.MapMode = "FlatFace"
sketch27.AttachmentOffset = App.Placement(App.Vector(0, 0, 2), App.Rotation())
sketch27.addGeometry(Part.Circle(App.Vector(45, -42.5, 0), App.Vector(0, 0, 1), 0.5), False)
sketch27.addConstraint([
    Sketcher.Constraint("Diameter", 0, Q("1 mm")),
    Sketcher.Constraint("DistanceX", -1, 1, 0, 3, Q("45 mm")),
    Sketcher.Constraint("DistanceY", 0, 3, -1, 1, Q("42.5 mm")),
])
doc.recompute()
hole23 = body.newObject("PartDesign::Hole", "Hole022")
hole23.Profile = sketch27
hole23.ThreadType = "None"
hole23.Diameter = 1
hole23.DepthType = "ThroughAll"

# Sketch on XY plane
sketch28 = body.newObject("Sketcher::SketchObject", "Sketch027")
sketch28.AttachmentSupport = (doc.getObject("XY_Plane"), [""])
sketch28.MapMode = "FlatFace"
sketch28.AttachmentOffset = App.Placement(App.Vector(0, 0, 2), App.Rotation())
sketch28.addGeometry(Part.Circle(App.Vector(45, 41.5, 0), App.Vector(0, 0, 1), 0.5), False)
sketch28.addConstraint([
    Sketcher.Constraint("Diameter", 0, Q("1 mm")),
    Sketcher.Constraint("DistanceX", -1, 1, 0, 3, Q("45 mm")),
    Sketcher.Constraint("DistanceY", -1, 1, 0, 3, Q("41.5 mm")),
])
doc.recompute()
hole24 = body.newObject("PartDesign::Hole", "Hole023")
hole24.Profile = sketch28
hole24.ThreadType = "None"
hole24.Diameter = 1
hole24.DepthType = "ThroughAll"

# Sketch on XY plane
sketch29 = body.newObject("Sketcher::SketchObject", "Sketch028")
sketch29.AttachmentSupport = (doc.getObject("XY_Plane"), [""])
sketch29.MapMode = "FlatFace"
sketch29.AttachmentOffset = App.Placement(App.Vector(0, 0, 2), App.Rotation())
sketch29.addGeometry(Part.Circle(App.Vector(51, 13.5, 0), App.Vector(0, 0, 1), 0.5), False)
sketch29.addConstraint([
    Sketcher.Constraint("Diameter", 0, Q("1 mm")),
    Sketcher.Constraint("DistanceX", -1, 1, 0, 3, Q("51 mm")),
    Sketcher.Constraint("DistanceY", -1, 1, 0, 3, Q("13.5 mm")),
])
doc.recompute()
hole25 = body.newObject("PartDesign::Hole", "Hole024")
hole25.Profile = sketch29
hole25.ThreadType = "None"
hole25.Diameter = 1
hole25.DepthType = "ThroughAll"

# Sketch on XY plane
sketch30 = body.newObject("Sketcher::SketchObject", "Sketch029")
sketch30.AttachmentSupport = (doc.getObject("XY_Plane"), [""])
sketch30.MapMode = "FlatFace"
sketch30.AttachmentOffset = App.Placement(App.Vector(0, 0, 2), App.Rotation())
sketch30.addGeometry(Part.Circle(App.Vector(95, 26.5, 0), App.Vector(0, 0, 1), 0.5), False)
sketch30.addConstraint([
    Sketcher.Constraint("Diameter", 0, Q("1 mm")),
    Sketcher.Constraint("DistanceX", -1, 1, 0, 3, Q("95 mm")),
    Sketcher.Constraint("DistanceY", -1, 1, 0, 3, Q("26.5 mm")),
])
doc.recompute()
hole26 = body.newObject("PartDesign::Hole", "Hole025")
hole26.Profile = sketch30
hole26.ThreadType = "None"
hole26.Diameter = 1
hole26.DepthType = "ThroughAll"

# Sketch on XY plane
sketch31 = body.newObject("Sketcher::SketchObject", "Sketch030")
sketch31.AttachmentSupport = (doc.getObject("XY_Plane"), [""])
sketch31.MapMode = "FlatFace"
sketch31.AttachmentOffset = App.Placement(App.Vector(0, 0, 2), App.Rotation())
sketch31.addGeometry(Part.Circle(App.Vector(81.5, -43.5, 0), App.Vector(0, 0, 1), 0.5), False)
sketch31.addConstraint([
    Sketcher.Constraint("Diameter", 0, Q("1 mm")),
    Sketcher.Constraint("DistanceX", -1, 1, 0, 3, Q("81.5 mm")),
    Sketcher.Constraint("DistanceY", 0, 3, -1, 1, Q("43.5 mm")),
])
doc.recompute()
hole27 = body.newObject("PartDesign::Hole", "Hole026")
hole27.Profile = sketch31
hole27.ThreadType = "None"
hole27.Diameter = 1
hole27.DepthType = "ThroughAll"

# Sketch on XY plane
sketch32 = body.newObject("Sketcher::SketchObject", "Sketch031")
sketch32.AttachmentSupport = (doc.getObject("XY_Plane"), [""])
sketch32.MapMode = "FlatFace"
sketch32.AttachmentOffset = App.Placement(App.Vector(0, 0, 2), App.Rotation())
sketch32.addGeometry(Part.Circle(App.Vector(81.5, -21.5, 0), App.Vector(0, 0, 1), 0.5), False)
sketch32.addConstraint([
    Sketcher.Constraint("Diameter", 0, Q("1 mm")),
    Sketcher.Constraint("DistanceX", -1, 1, 0, 3, Q("81.5 mm")),
    Sketcher.Constraint("DistanceY", 0, 3, -1, 1, Q("21.5 mm")),
])
doc.recompute()
hole28 = body.newObject("PartDesign::Hole", "Hole027")
hole28.Profile = sketch32
hole28.ThreadType = "None"
hole28.Diameter = 1
hole28.DepthType = "ThroughAll"

# Sketch on XY plane
sketch33 = body.newObject("Sketcher::SketchObject", "Sketch032")
sketch33.AttachmentSupport = (doc.getObject("XY_Plane"), [""])
sketch33.MapMode = "FlatFace"
sketch33.AttachmentOffset = App.Placement(App.Vector(0, 0, 2), App.Rotation())
sketch33.addGeometry(Part.Circle(App.Vector(81.5, 0.5, 0), App.Vector(0, 0, 1), 0.5), False)
sketch33.addConstraint([
    Sketcher.Constraint("Diameter", 0, Q("1 mm")),
    Sketcher.Constraint("DistanceX", -1, 1, 0, 3, Q("81.5 mm")),
    Sketcher.Constraint("DistanceY", -1, 1, 0, 3, Q("0.5 mm")),
])
doc.recompute()
hole29 = body.newObject("PartDesign::Hole", "Hole028")
hole29.Profile = sketch33
hole29.ThreadType = "None"
hole29.Diameter = 1
hole29.DepthType = "ThroughAll"

# Sketch on XY plane
sketch34 = body.newObject("Sketcher::SketchObject", "Sketch033")
sketch34.AttachmentSupport = (doc.getObject("XY_Plane"), [""])
sketch34.MapMode = "FlatFace"
sketch34.AttachmentOffset = App.Placement(App.Vector(0, 0, 2), App.Rotation())
sketch34.addGeometry(Part.Circle(App.Vector(86.5, 0.5, 0), App.Vector(0, 0, 1), 0.5), False)
sketch34.addConstraint([
    Sketcher.Constraint("Diameter", 0, Q("1 mm")),
    Sketcher.Constraint("DistanceX", -1, 1, 0, 3, Q("86.5 mm")),
    Sketcher.Constraint("DistanceY", -1, 1, 0, 3, Q("0.5 mm")),
])
doc.recompute()
hole30 = body.newObject("PartDesign::Hole", "Hole029")
hole30.Profile = sketch34
hole30.ThreadType = "None"
hole30.Diameter = 1
hole30.DepthType = "ThroughAll"

# Sketch on XY plane
sketch35 = body.newObject("Sketcher::SketchObject", "Sketch034")
sketch35.AttachmentSupport = (doc.getObject("XY_Plane"), [""])
sketch35.MapMode = "FlatFace"
sketch35.AttachmentOffset = App.Placement(App.Vector(0, 0, 2), App.Rotation())
sketch35.addGeometry(Part.Circle(App.Vector(86.5, -43.5, 0), App.Vector(0, 0, 1), 0.5), False)
sketch35.addConstraint([
    Sketcher.Constraint("Diameter", 0, Q("1 mm")),
    Sketcher.Constraint("DistanceX", -1, 1, 0, 3, Q("86.5 mm")),
    Sketcher.Constraint("DistanceY", 0, 3, -1, 1, Q("43.5 mm")),
])
doc.recompute()
hole31 = body.newObject("PartDesign::Hole", "Hole030")
hole31.Profile = sketch35
hole31.ThreadType = "None"
hole31.Diameter = 1
hole31.DepthType = "ThroughAll"

# Sketch on XY plane
sketch36 = body.newObject("Sketcher::SketchObject", "Sketch035")
sketch36.AttachmentSupport = (doc.getObject("XY_Plane"), [""])
sketch36.MapMode = "FlatFace"
sketch36.AttachmentOffset = App.Placement(App.Vector(0, 0, 2), App.Rotation())
sketch36.addGeometry(Part.Circle(App.Vector(-59.5, -36.5, 0), App.Vector(0, 0, 1), 0.5), False)
sketch36.addConstraint([
    Sketcher.Constraint("Diameter", 0, Q("1 mm")),
    Sketcher.Constraint("DistanceX", 0, 3, -1, 1, Q("59.5 mm")),
    Sketcher.Constraint("DistanceY", 0, 3, -1, 1, Q("36.5 mm")),
])
doc.recompute()
hole32 = body.newObject("PartDesign::Hole", "Hole031")
hole32.Profile = sketch36
hole32.ThreadType = "None"
hole32.Diameter = 1
hole32.DepthType = "ThroughAll"

# Sketch on XY plane
sketch37 = body.newObject("Sketcher::SketchObject", "Sketch036")
sketch37.AttachmentSupport = (doc.getObject("XY_Plane"), [""])
sketch37.MapMode = "FlatFace"
sketch37.AttachmentOffset = App.Placement(App.Vector(0, 0, 2), App.Rotation())
sketch37.addGeometry(Part.Circle(App.Vector(-49, -36.5, 0), App.Vector(0, 0, 1), 0.5), False)
sketch37.addConstraint([
    Sketcher.Constraint("Diameter", 0, Q("1 mm")),
    Sketcher.Constraint("DistanceX", 0, 3, -1, 1, Q("49 mm")),
    Sketcher.Constraint("DistanceY", 0, 3, -1, 1, Q("36.5 mm")),
])
doc.recompute()
hole33 = body.newObject("PartDesign::Hole", "Hole032")
hole33.Profile = sketch37
hole33.ThreadType = "None"
hole33.Diameter = 1
hole33.DepthType = "ThroughAll"

# Sketch on XY plane
sketch38 = body.newObject("Sketcher::SketchObject", "Sketch037")
sketch38.AttachmentSupport = (doc.getObject("XY_Plane"), [""])
sketch38.MapMode = "FlatFace"
sketch38.AttachmentOffset = App.Placement(App.Vector(0, 0, 2), App.Rotation())
sketch38.addGeometry(Part.Circle(App.Vector(-70, -36.5, 0), App.Vector(0, 0, 1), 0.5), False)
sketch38.addConstraint([
    Sketcher.Constraint("Diameter", 0, Q("1 mm")),
    Sketcher.Constraint("DistanceX", 0, 3, -1, 1, Q("70 mm")),
    Sketcher.Constraint("DistanceY", 0, 3, -1, 1, Q("36.5 mm")),
])
doc.recompute()
hole34 = body.newObject("PartDesign::Hole", "Hole033")
hole34.Profile = sketch38
hole34.ThreadType = "None"
hole34.Diameter = 1
hole34.DepthType = "ThroughAll"

doc.recompute()
